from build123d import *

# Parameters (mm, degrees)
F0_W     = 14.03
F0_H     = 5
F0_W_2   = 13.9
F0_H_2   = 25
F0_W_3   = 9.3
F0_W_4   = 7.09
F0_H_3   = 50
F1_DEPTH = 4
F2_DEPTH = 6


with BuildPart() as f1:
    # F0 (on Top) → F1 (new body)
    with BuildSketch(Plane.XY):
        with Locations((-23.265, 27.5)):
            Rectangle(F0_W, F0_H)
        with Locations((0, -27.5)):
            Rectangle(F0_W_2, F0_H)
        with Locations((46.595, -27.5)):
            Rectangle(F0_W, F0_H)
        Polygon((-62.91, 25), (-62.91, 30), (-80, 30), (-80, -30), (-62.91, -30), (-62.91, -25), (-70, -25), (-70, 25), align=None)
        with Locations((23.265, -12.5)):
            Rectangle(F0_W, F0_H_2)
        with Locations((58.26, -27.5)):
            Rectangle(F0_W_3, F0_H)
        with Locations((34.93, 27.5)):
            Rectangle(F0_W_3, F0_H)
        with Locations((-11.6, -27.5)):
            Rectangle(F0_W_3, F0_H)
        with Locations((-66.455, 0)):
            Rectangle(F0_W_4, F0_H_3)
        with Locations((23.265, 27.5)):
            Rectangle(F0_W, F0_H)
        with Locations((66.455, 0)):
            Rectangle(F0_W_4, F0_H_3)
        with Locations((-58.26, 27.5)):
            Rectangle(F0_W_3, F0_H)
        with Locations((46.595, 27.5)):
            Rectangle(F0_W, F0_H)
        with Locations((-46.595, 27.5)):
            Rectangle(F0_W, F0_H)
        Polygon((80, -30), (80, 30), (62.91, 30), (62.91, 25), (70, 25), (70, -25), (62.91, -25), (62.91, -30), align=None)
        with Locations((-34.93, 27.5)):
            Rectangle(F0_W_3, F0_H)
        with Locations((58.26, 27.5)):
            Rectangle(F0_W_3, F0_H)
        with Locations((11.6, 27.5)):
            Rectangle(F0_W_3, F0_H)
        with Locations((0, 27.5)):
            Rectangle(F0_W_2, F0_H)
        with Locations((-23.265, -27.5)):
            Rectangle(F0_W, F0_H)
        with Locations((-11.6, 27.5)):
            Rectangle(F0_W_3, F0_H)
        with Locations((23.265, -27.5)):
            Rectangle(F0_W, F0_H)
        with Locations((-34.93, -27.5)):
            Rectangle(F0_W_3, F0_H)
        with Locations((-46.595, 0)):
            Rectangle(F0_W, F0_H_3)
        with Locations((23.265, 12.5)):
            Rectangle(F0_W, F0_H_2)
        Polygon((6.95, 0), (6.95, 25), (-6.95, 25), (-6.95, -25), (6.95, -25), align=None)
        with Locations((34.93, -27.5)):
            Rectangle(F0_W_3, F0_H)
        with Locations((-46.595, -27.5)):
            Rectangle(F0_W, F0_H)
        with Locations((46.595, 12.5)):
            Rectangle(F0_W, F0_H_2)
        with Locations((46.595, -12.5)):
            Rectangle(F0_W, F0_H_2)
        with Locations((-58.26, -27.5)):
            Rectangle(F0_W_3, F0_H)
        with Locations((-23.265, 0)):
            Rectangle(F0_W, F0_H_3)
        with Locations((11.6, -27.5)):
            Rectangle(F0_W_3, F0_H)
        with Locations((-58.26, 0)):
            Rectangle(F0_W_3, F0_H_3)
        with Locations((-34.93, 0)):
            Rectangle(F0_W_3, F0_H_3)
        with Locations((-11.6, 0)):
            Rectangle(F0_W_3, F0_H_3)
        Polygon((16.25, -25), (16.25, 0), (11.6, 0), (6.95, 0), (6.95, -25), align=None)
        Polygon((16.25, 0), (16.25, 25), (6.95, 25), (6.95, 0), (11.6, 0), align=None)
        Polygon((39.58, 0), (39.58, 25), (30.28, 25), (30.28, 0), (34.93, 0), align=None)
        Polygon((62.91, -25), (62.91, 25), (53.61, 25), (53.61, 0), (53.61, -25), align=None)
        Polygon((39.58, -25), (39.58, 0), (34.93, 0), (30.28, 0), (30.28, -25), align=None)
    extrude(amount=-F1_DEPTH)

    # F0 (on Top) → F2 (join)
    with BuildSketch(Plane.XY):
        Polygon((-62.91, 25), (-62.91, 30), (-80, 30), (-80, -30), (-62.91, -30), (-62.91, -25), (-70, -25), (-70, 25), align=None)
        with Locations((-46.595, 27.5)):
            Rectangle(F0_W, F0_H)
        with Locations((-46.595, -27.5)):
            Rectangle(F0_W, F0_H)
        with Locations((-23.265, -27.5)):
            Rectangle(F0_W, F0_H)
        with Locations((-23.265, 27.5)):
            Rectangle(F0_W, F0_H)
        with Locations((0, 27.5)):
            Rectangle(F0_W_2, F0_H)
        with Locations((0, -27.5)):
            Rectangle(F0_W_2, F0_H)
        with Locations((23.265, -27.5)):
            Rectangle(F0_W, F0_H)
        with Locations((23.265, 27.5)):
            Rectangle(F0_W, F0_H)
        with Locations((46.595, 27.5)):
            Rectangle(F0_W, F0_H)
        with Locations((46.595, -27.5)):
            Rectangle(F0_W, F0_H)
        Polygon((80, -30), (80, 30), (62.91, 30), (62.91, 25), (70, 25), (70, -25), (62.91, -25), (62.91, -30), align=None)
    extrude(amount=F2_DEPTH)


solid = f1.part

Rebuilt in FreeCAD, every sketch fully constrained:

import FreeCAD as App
import Part
import Sketcher
from FreeCAD import Vector

doc = App.newDocument("Part")
body = doc.addObject("PartDesign::Body", "Body")

# Sketch on XY plane
sketch1 = doc.addObject("Sketcher::SketchObject", "Sketch")
body.addObject(sketch1)
sketch1.AttachmentSupport = (doc.XY_Plane, [""])
sketch1.MapMode = "FlatFace"
sketch1.addGeometry(Part.LineSegment(Vector(80, -30, 0), Vector(80, 30, 0)), False)
sketch1.addGeometry(Part.LineSegment(Vector(80, 30, 0), Vector(-80, 30, 0)), False)
sketch1.addGeometry(Part.LineSegment(Vector(-80, 30, 0), Vector(-80, -30, 0)), False)
sketch1.addGeometry(Part.LineSegment(Vector(-80, -30, 0), Vector(80, -30, 0)), False)
sketch1.addConstraint(Sketcher.Constraint("Coincident", 0, 2, 1, 1))
sketch1.addConstraint(Sketcher.Constraint("Coincident", 1, 2, 2, 1))
sketch1.addConstraint(Sketcher.Constraint("Coincident", 2, 2, 3, 1))
sketch1.addConstraint(Sketcher.Constraint("Coincident", 3, 2, 0, 1))
sketch1.addConstraint(Sketcher.Constraint("Vertical", 0))
sketch1.addConstraint(Sketcher.Constraint("Horizontal", 1))
sketch1.addConstraint(Sketcher.Constraint("Vertical", 2))
sketch1.addConstraint(Sketcher.Constraint("Horizontal", 3))
sketch1.addConstraint(Sketcher.Constraint("Symmetric", 0, 2, 2, 2, -1, 1))
sketch1.addConstraint(Sketcher.Constraint("DistanceX", 1, 2, 1, 1, 160.0))
sketch1.addConstraint(Sketcher.Constraint("DistanceY", 0, 1, 0, 2, 60.0))
pad1 = doc.addObject("PartDesign::Pad", "Pad")
body.addObject(pad1)
pad1.Profile = sketch1
pad1.Length = 4
pad1.Reversed = True

# Sketch on XY plane
sketch2 = doc.addObject("Sketcher::SketchObject", "Sketch001")
body.addObject(sketch2)
sketch2.AttachmentSupport = (doc.XY_Plane, [""])
sketch2.MapMode = "FlatFace"
sketch2.addGeometry(Part.LineSegment(Vector(-63, 25, 0), Vector(-63, 30, 0)), False)
sketch2.addGeometry(Part.LineSegment(Vector(-63, 30, 0), Vector(-80, 30, 0)), False)
sketch2.addGeometry(Part.LineSegment(Vector(-80, 30, 0), Vector(-80, -30, 0)), False)
sketch2.addGeometry(Part.LineSegment(Vector(-80, -30, 0), Vector(-63, -30, 0)), False)
sketch2.addGeometry(Part.LineSegment(Vector(-63, -30, 0), Vector(-63, -25, 0)), False)
sketch2.addGeometry(Part.LineSegment(Vector(-63, -25, 0), Vector(-70, -25, 0)), False)
sketch2.addGeometry(Part.LineSegment(Vector(-70, -25, 0), Vector(-70, 25, 0)), False)
sketch2.addGeometry(Part.LineSegment(Vector(-70, 25, 0), Vector(-63, 25, 0)), False)
sketch2.addGeometry(Part.LineSegment(Vector(-54, 30, 0), Vector(-54, 25, 0)), False)
sketch2.addGeometry(Part.LineSegment(Vector(-54, 25, 0), Vector(-40, 25, 0)), False)
sketch2.addGeometry(Part.LineSegment(Vector(-40, 25, 0), Vector(-40, 30, 0)), False)
sketch2.addGeometry(Part.LineSegment(Vector(-40, 30, 0), Vector(-54, 30, 0)), False)
sketch2.addGeometry(Part.LineSegment(Vector(-54, -25, 0), Vector(-54, -30, 0)), False)
sketch2.addGeometry(Part.LineSegment(Vector(-54, -30, 0), Vector(-40, -30, 0)), False)
sketch2.addGeometry(Part.LineSegment(Vector(-40, -30, 0), Vector(-40, -25, 0)), False)
sketch2.addGeometry(Part.LineSegment(Vector(-40, -25, 0), Vector(-54, -25, 0)), False)
sketch2.addGeometry(Part.LineSegment(Vector(-30, -25, 0), Vector(-30, -30, 0)), False)
sketch2.addGeometry(Part.LineSegment(Vector(-30, -30, 0), Vector(-16, -30, 0)), False)
sketch2.addGeometry(Part.LineSegment(Vector(-16, -30, 0), Vector(-16, -25, 0)), False)
sketch2.addGeometry(Part.LineSegment(Vector(-16, -25, 0), Vector(-30, -25, 0)), False)
sketch2.addGeometry(Part.LineSegment(Vector(-30, 30, 0), Vector(-30, 25, 0)), False)
sketch2.addGeometry(Part.LineSegment(Vector(-30, 25, 0), Vector(-16, 25, 0)), False)
sketch2.addGeometry(Part.LineSegment(Vector(-16, 25, 0), Vector(-16, 30, 0)), False)
sketch2.addGeometry(Part.LineSegment(Vector(-16, 30, 0), Vector(-30, 30, 0)), False)
sketch2.addGeometry(Part.LineSegment(Vector(-7, 30, 0), Vector(-7, 25, 0)), False)
sketch2.addGeometry(Part.LineSegment(Vector(-7, 25, 0), Vector(7, 25, 0)), False)
sketch2.addGeometry(Part.LineSegment(Vector(7, 25, 0), Vector(7, 30, 0)), False)
sketch2.addGeometry(Part.LineSegment(Vector(7, 30, 0), Vector(-7, 30, 0)), False)
sketch2.addGeometry(Part.LineSegment(Vector(-7, -25, 0), Vector(-7, -30, 0)), False)
sketch2.addGeometry(Part.LineSegment(Vector(-7, -30, 0), Vector(7, -30, 0)), False)
sketch2.addGeometry(Part.LineSegment(Vector(7, -30, 0), Vector(7, -25, 0)), False)
sketch2.addGeometry(Part.LineSegment(Vector(7, -25, 0), Vector(-7, -25, 0)), False)
sketch2.addGeometry(Part.LineSegment(Vector(16, -25, 0), Vector(16, -30, 0)), False)
sketch2.addGeometry(Part.LineSegment(Vector(16, -30, 0), Vector(30, -30, 0)), False)
sketch2.addGeometry(Part.LineSegment(Vector(30, -30, 0), Vector(30, -25, 0)), False)
sketch2.addGeometry(Part.LineSegment(Vector(30, -25, 0), Vector(16, -25, 0)), False)
sketch2.addGeometry(Part.LineSegment(Vector(16, 30, 0), Vector(16, 25, 0)), False)
sketch2.addGeometry(Part.LineSegment(Vector(16, 25, 0), Vector(30, 25, 0)), False)
sketch2.addGeometry(Part.LineSegment(Vector(30, 25, 0), Vector(30, 30, 0)), False)
sketch2.addGeometry(Part.LineSegment(Vector(30, 30, 0), Vector(16, 30, 0)), False)
sketch2.addGeometry(Part.LineSegment(Vector(40, 30, 0), Vector(40, 25, 0)), False)
sketch2.addGeometry(Part.LineSegment(Vector(40, 25, 0), Vector(54, 25, 0)), False)
sketch2.addGeometry(Part.LineSegment(Vector(54, 25, 0), Vector(54, 30, 0)), False)
sketch2.addGeometry(Part.LineSegment(Vector(54, 30, 0), Vector(40, 30, 0)), False)
sketch2.addGeometry(Part.LineSegment(Vector(40, -25, 0), Vector(40, -30, 0)), False)
sketch2.addGeometry(Part.LineSegment(Vector(40, -30, 0), Vector(54, -30, 0)), False)
sketch2.addGeometry(Part.LineSegment(Vector(54, -30, 0), Vector(54, -25, 0)), False)
sketch2.addGeometry(Part.LineSegment(Vector(54, -25, 0), Vector(40, -25, 0)), False)
sketch2.addGeometry(Part.LineSegment(Vector(80, -30, 0), Vector(80, 30, 0)), False)
sketch2.addGeometry(Part.LineSegment(Vector(80, 30, 0), Vector(63, 30, 0)), False)
sketch2.addGeometry(Part.LineSegment(Vector(63, 30, 0), Vector(63, 25, 0)), False)
sketch2.addGeometry(Part.LineSegment(Vector(63, 25, 0), Vector(70, 25, 0)), False)
sketch2.addGeometry(Part.LineSegment(Vector(70, 25, 0), Vector(70, -25, 0)), False)
sketch2.addGeometry(Part.LineSegment(Vector(70, -25, 0), Vector(63, -25, 0)), False)
sketch2.addGeometry(Part.LineSegment(Vector(63, -25, 0), Vector(63, -30, 0)), False)
sketch2.addGeometry(Part.LineSegment(Vector(63, -30, 0), Vector(80, -30, 0)), False)
sketch2.addConstraint(Sketcher.Constraint("Coincident", 0, 2, 1, 1))
sketch2.addConstraint(Sketcher.Constraint("Coincident", 1, 2, 2, 1))
sketch2.addConstraint(Sketcher.Constraint("Coincident", 2, 2, 3, 1))
sketch2.addConstraint(Sketcher.Constraint("Coincident", 3, 2, 4, 1))
sketch2.addConstraint(Sketcher.Constraint("Coincident", 4, 2, 5, 1))
sketch2.addConstraint(Sketcher.Constraint("Coincident", 5, 2, 6, 1))
sketch2.addConstraint(Sketcher.Constraint("Coincident", 6, 2, 7, 1))
sketch2.addConstraint(Sketcher.Constraint("Coincident", 7, 2, 0, 1))
sketch2.addConstraint(Sketcher.Constraint("Coincident", 8, 2, 9, 1))
sketch2.addConstraint(Sketcher.Constraint("Coincident", 9, 2, 10, 1))
sketch2.addConstraint(Sketcher.Constraint("Coincident", 10, 2, 11, 1))
sketch2.addConstraint(Sketcher.Constraint("Coincident", 11, 2, 8, 1))
sketch2.addConstraint(Sketcher.Constraint("Coincident", 12, 2, 13, 1))
sketch2.addConstraint(Sketcher.Constraint("Coincident", 13, 2, 14, 1))
sketch2.addConstraint(Sketcher.Constraint("Coincident", 14, 2, 15, 1))
sketch2.addConstraint(Sketcher.Constraint("Coincident", 15, 2, 12, 1))
sketch2.addConstraint(Sketcher.Constraint("Coincident", 16, 2, 17, 1))
sketch2.addConstraint(Sketcher.Constraint("Coincident", 17, 2, 18, 1))
sketch2.addConstraint(Sketcher.Constraint("Coincident", 18, 2, 19, 1))
sketch2.addConstraint(Sketcher.Constraint("Coincident", 19, 2, 16, 1))
sketch2.addConstraint(Sketcher.Constraint("Coincident", 20, 2, 21, 1))
sketch2.addConstraint(Sketcher.Constraint("Coincident", 21, 2, 22, 1))
sketch2.addConstraint(Sketcher.Constraint("Coincident", 22, 2, 23, 1))
sketch2.addConstraint(Sketcher.Constraint("Coincident", 23, 2, 20, 1))
sketch2.addConstraint(Sketcher.Constraint("Coincident", 24, 2, 25, 1))
sketch2.addConstraint(Sketcher.Constraint("Coincident", 25, 2, 26, 1))
sketch2.addConstraint(Sketcher.Constraint("Coincident", 26, 2, 27, 1))
sketch2.addConstraint(Sketcher.Constraint("Coincident", 27, 2, 24, 1))
sketch2.addConstraint(Sketcher.Constraint("Coincident", 28, 2, 29, 1))
sketch2.addConstraint(Sketcher.Constraint("Coincident", 29, 2, 30, 1))
sketch2.addConstraint(Sketcher.Constraint("Coincident", 30, 2, 31, 1))
sketch2.addConstraint(Sketcher.Constraint("Coincident", 31, 2, 28, 1))
sketch2.addConstraint(Sketcher.Constraint("Coincident", 32, 2, 33, 1))
sketch2.addConstraint(Sketcher.Constraint("Coincident", 33, 2, 34, 1))
sketch2.addConstraint(Sketcher.Constraint("Coincident", 34, 2, 35, 1))
sketch2.addConstraint(Sketcher.Constraint("Coincident", 35, 2, 32, 1))
sketch2.addConstraint(Sketcher.Constraint("Coincident", 36, 2, 37, 1))
sketch2.addConstraint(Sketcher.Constraint("Coincident", 37, 2, 38, 1))
sketch2.addConstraint(Sketcher.Constraint("Coincident", 38, 2, 39, 1))
sketch2.addConstraint(Sketcher.Constraint("Coincident", 39, 2, 36, 1))
sketch2.addConstraint(Sketcher.Constraint("Coincident", 40, 2, 41, 1))
sketch2.addConstraint(Sketcher.Constraint("Coincident", 41, 2, 42, 1))
sketch2.addConstraint(Sketcher.Constraint("Coincident", 42, 2, 43, 1))
sketch2.addConstraint(Sketcher.Constraint("Coincident", 43, 2, 40, 1))
sketch2.addConstraint(Sketcher.Constraint("Coincident", 44, 2, 45, 1))
sketch2.addConstraint(Sketcher.Constraint("Coincident", 45, 2, 46, 1))
sketch2.addConstraint(Sketcher.Constraint("Coincident", 46, 2, 47, 1))
sketch2.addConstraint(Sketcher.Constraint("Coincident", 47, 2, 44, 1))
sketch2.addConstraint(Sketcher.Constraint("Coincident", 48, 2, 49, 1))
sketch2.addConstraint(Sketcher.Constraint("Coincident", 49, 2, 50, 1))
sketch2.addConstraint(Sketcher.Constraint("Coincident", 50, 2, 51, 1))
sketch2.addConstraint(Sketcher.Constraint("Coincident", 51, 2, 52, 1))
sketch2.addConstraint(Sketcher.Constraint("Coincident", 52, 2, 53, 1))
sketch2.addConstraint(Sketcher.Constraint("Coincident", 53, 2, 54, 1))
sketch2.addConstraint(Sketcher.Constraint("Coincident", 54, 2, 55, 1))
sketch2.addConstraint(Sketcher.Constraint("Coincident", 55, 2, 48, 1))
sketch2.addConstraint(Sketcher.Constraint("Vertical", 0))
sketch2.addConstraint(Sketcher.Constraint("Horizontal", 1))
sketch2.addConstraint(Sketcher.Constraint("Vertical", 2))
sketch2.addConstraint(Sketcher.Constraint("Horizontal", 3))
sketch2.addConstraint(Sketcher.Constraint("Vertical", 4))
sketch2.addConstraint(Sketcher.Constraint("Horizontal", 5))
sketch2.addConstraint(Sketcher.Constraint("Vertical", 6))
sketch2.addConstraint(Sketcher.Constraint("Horizontal", 7))
sketch2.addConstraint(Sketcher.Constraint("Vertical", 8))
sketch2.addConstraint(Sketcher.Constraint("Horizontal", 9))
sketch2.addConstraint(Sketcher.Constraint("Vertical", 10))
sketch2.addConstraint(Sketcher.Constraint("Horizontal", 11))
sketch2.addConstraint(Sketcher.Constraint("Vertical", 12))
sketch2.addConstraint(Sketcher.Constraint("Horizontal", 13))
sketch2.addConstraint(Sketcher.Constraint("Vertical", 14))
sketch2.addConstraint(Sketcher.Constraint("Horizontal", 15))
sketch2.addConstraint(Sketcher.Constraint("Vertical", 16))
sketch2.addConstraint(Sketcher.Constraint("Horizontal", 17))
sketch2.addConstraint(Sketcher.Constraint("Vertical", 18))
sketch2.addConstraint(Sketcher.Constraint("Horizontal", 19))
sketch2.addConstraint(Sketcher.Constraint("Vertical", 20))
sketch2.addConstraint(Sketcher.Constraint("Horizontal", 21))
sketch2.addConstraint(Sketcher.Constraint("Vertical", 22))
sketch2.addConstraint(Sketcher.Constraint("Horizontal", 23))
sketch2.addConstraint(Sketcher.Constraint("Vertical", 24))
sketch2.addConstraint(Sketcher.Constraint("Horizontal", 25))
sketch2.addConstraint(Sketcher.Constraint("Vertical", 26))
sketch2.addConstraint(Sketcher.Constraint("Horizontal", 27))
sketch2.addConstraint(Sketcher.Constraint("Vertical", 28))
sketch2.addConstraint(Sketcher.Constraint("Horizontal", 29))
sketch2.addConstraint(Sketcher.Constraint("Vertical", 30))
sketch2.addConstraint(Sketcher.Constraint("Horizontal", 31))
sketch2.addConstraint(Sketcher.Constraint("Vertical", 32))
sketch2.addConstraint(Sketcher.Constraint("Horizontal", 33))
sketch2.addConstraint(Sketcher.Constraint("Vertical", 34))
sketch2.addConstraint(Sketcher.Constraint("Horizontal", 35))
sketch2.addConstraint(Sketcher.Constraint("Vertical", 36))
sketch2.addConstraint(Sketcher.Constraint("Horizontal", 37))
sketch2.addConstraint(Sketcher.Constraint("Vertical", 38))
sketch2.addConstraint(Sketcher.Constraint("Horizontal", 39))
sketch2.addConstraint(Sketcher.Constraint("Vertical", 40))
sketch2.addConstraint(Sketcher.Constraint("Horizontal", 41))
sketch2.addConstraint(Sketcher.Constraint("Vertical", 42))
sketch2.addConstraint(Sketcher.Constraint("Horizontal", 43))
sketch2.addConstraint(Sketcher.Constraint("Vertical", 44))
sketch2.addConstraint(Sketcher.Constraint("Horizontal", 45))
sketch2.addConstraint(Sketcher.Constraint("Vertical", 46))
sketch2.addConstraint(Sketcher.Constraint("Horizontal", 47))
sketch2.addConstraint(Sketcher.Constraint("Vertical", 48))
sketch2.addConstraint(Sketcher.Constraint("Horizontal", 49))
sketch2.addConstraint(Sketcher.Constraint("Vertical", 50))
sketch2.addConstraint(Sketcher.Constraint("Horizontal", 51))
sketch2.addConstraint(Sketcher.Constraint("Vertical", 52))
sketch2.addConstraint(Sketcher.Constraint("Horizontal", 53))
sketch2.addConstraint(Sketcher.Constraint("Vertical", 54))
sketch2.addConstraint(Sketcher.Constraint("Horizontal", 55))
sketch2.addConstraint(Sketcher.Constraint("Symmetric", 26, 2, 28, 2, -1, 1))
sketch2.addConstraint(Sketcher.Constraint("Symmetric", 24, 2, 30, 2, -1, 1))
sketch2.addConstraint(Sketcher.Constraint("Symmetric", 22, 2, 32, 2, -1, 1))
sketch2.addConstraint(Sketcher.Constraint("Symmetric", 20, 2, 34, 2, -1, 1))
sketch2.addConstraint(Sketcher.Constraint("Symmetric", 18, 2, 36, 2, -1, 1))
sketch2.addConstraint(Sketcher.Constraint("Symmetric", 16, 2, 38, 2, -1, 1))
sketch2.addConstraint(Sketcher.Constraint("Symmetric", 14, 2, 40, 2, -1, 1))
sketch2.addConstraint(Sketcher.Constraint("Symmetric", 12, 2, 42, 2, -1, 1))
sketch2.addConstraint(Sketcher.Constraint("Symmetric", 10, 2, 44, 2, -1, 1))
sketch2.addConstraint(Sketcher.Constraint("Symmetric", 8, 2, 46, 2, -1, 1))
sketch2.addConstraint(Sketcher.Constraint("Symmetric", 2, 2, 48, 2, -1, 1))
sketch2.addConstraint(Sketcher.Constraint("Symmetric", 4, 2, 50, 2, -1, 1))
sketch2.addConstraint(Sketcher.Constraint("Symmetric", 6, 2, 52, 2, -1, 1))
sketch2.addConstraint(Sketcher.Constraint("Symmetric", 0, 2, 54, 2, -1, 1))
sketch2.addConstraint(Sketcher.Constraint("Symmetric", 17, 2, 32, 2, -2))
sketch2.addConstraint(Sketcher.Constraint("Symmetric", 19, 2, 34, 2, -2))
sketch2.addConstraint(Sketcher.Constraint("Symmetric", 9, 2, 40, 2, -2))
sketch2.addConstraint(Sketcher.Constraint("Symmetric", 11, 2, 42, 2, -2))
sketch2.addConstraint(Sketcher.Constraint("Symmetric", 0, 2, 49, 2, -2))
sketch2.addConstraint(Sketcher.Constraint("Horizontal", 7, 2, 8, 2))
sketch2.addConstraint(Sketcher.Constraint("Horizontal", 1, 2, 10, 2))
sketch2.addConstraint(Sketcher.Constraint("Horizontal", 5, 2, 14, 2))
sketch2.addConstraint(Sketcher.Constraint("Horizontal", 13, 2, 16, 2))
sketch2.addConstraint(Sketcher.Constraint("Horizontal", 15, 2, 18, 2))
sketch2.addConstraint(Sketcher.Constraint("Horizontal", 21, 2, 24, 2))
sketch2.addConstraint(Sketcher.Constraint("Horizontal", 23, 2, 26, 2))
sketch2.addConstraint(Sketcher.Constraint("Vertical", 27, 2, 28, 2))
sketch2.addConstraint(Sketcher.Constraint("Equal", 15, 17))
sketch2.addConstraint(Sketcher.Constraint("DistanceY", 0, 1, 0, 2, 5.0))
sketch2.addConstraint(Sketcher.Constraint("DistanceY", 2, 2, 2, 1, 60.0))
sketch2.addConstraint(Sketcher.Constraint("DistanceX", 25, 1, 25, 2, 13.9))
sketch2.addConstraint(Sketcher.Constraint("DistanceX", 1, 2, -1, 1, 80.0))
sketch2.addConstraint(Sketcher.Constraint("DistanceX", 5, 2, -1, 1, 70.0))
sketch2.addConstraint(Sketcher.Constraint("DistanceX", 1, 2, 1, 1, 17.09))
sketch2.addConstraint(Sketcher.Constraint("DistanceX", 9, 1, 9, 2, 14.03))
sketch2.addConstraint(Sketcher.Constraint("DistanceX", 7, 2, 8, 2, 9.3))
sketch2.addConstraint(Sketcher.Constraint("DistanceX", 13, 2, 16, 2, 9.3))
pad2 = doc.addObject("PartDesign::Pad", "Pad001")
body.addObject(pad2)
pad2.Profile = sketch2
pad2.Length = 6

doc.recompute()
